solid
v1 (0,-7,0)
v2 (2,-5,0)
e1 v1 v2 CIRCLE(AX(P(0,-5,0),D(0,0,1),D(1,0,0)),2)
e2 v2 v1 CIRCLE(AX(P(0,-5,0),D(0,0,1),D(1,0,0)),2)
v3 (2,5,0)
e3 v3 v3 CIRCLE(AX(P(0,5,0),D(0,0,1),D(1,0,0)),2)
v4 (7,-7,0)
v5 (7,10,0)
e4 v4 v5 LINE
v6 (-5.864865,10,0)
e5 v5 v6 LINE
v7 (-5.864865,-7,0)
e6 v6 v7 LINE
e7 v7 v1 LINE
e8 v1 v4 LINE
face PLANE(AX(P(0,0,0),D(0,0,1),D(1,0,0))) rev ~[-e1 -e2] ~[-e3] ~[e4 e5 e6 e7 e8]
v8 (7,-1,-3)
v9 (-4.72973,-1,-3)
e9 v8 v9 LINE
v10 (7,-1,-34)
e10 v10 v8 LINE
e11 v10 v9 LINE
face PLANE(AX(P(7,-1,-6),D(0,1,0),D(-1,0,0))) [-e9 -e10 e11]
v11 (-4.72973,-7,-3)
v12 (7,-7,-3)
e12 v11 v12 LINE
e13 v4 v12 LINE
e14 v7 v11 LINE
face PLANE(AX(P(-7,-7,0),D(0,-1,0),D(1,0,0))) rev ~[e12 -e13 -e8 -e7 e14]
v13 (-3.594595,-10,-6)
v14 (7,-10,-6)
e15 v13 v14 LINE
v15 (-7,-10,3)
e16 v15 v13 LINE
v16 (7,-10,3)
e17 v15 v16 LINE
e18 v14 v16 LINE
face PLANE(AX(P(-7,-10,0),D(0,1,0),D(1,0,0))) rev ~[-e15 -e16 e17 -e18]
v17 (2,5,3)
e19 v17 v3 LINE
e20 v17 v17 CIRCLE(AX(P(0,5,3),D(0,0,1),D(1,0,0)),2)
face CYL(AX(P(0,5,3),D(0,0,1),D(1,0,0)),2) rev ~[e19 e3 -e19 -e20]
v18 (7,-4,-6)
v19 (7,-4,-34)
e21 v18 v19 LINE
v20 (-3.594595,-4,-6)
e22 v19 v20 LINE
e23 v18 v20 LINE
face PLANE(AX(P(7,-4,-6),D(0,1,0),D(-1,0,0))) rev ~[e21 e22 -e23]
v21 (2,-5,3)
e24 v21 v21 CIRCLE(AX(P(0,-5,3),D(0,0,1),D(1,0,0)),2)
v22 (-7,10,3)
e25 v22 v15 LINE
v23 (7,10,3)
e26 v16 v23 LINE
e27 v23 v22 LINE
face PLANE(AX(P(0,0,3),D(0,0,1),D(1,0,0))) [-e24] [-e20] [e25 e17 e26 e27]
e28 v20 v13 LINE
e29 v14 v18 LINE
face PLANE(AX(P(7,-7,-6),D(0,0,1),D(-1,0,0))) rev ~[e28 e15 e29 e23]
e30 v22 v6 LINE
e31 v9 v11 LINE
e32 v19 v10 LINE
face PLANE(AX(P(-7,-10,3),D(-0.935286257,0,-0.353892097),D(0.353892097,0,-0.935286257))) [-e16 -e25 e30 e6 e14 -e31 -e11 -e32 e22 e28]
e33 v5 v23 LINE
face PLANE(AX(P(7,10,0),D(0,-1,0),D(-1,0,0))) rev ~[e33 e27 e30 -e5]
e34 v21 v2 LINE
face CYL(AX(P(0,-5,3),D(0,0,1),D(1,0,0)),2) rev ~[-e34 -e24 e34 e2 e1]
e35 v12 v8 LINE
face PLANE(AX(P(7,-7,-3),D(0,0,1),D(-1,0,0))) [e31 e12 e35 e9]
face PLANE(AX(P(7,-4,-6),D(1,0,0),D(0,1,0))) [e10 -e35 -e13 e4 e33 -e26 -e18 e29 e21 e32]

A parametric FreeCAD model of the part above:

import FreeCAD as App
import Part
import Sketcher
Q = App.Units.Quantity

doc = App.newDocument("Part")
body = doc.addObject("PartDesign::Body", "Body")

# Sketch on XY plane
sketch1 = body.newObject("Sketcher::SketchObject", "Sketch")
sketch1.AttachmentSupport = (doc.getObject("XY_Plane"), [""])
sketch1.MapMode = "FlatFace"
sketch1.addGeometry([
    Part.LineSegment(App.Vector(-7, 10, 0), App.Vector(-7, -10, 0)),
    Part.LineSegment(App.Vector(-7, -10, 0), App.Vector(7, -10, 0)),
    Part.LineSegment(App.Vector(7, -10, 0), App.Vector(7, 10, 0)),
    Part.LineSegment(App.Vector(7, 10, 0), App.Vector(-7, 10, 0)),
], False)
sketch1.addConstraint([
    Sketcher.Constraint("Coincident", 0, 2, 1, 1),
    Sketcher.Constraint("Coincident", 1, 2, 2, 1),
    Sketcher.Constraint("Coincident", 2, 2, 3, 1),
    Sketcher.Constraint("Coincident", 3, 2, 0, 1),
    Sketcher.Constraint("Vertical", 0),
    Sketcher.Constraint("Horizontal", 1),
    Sketcher.Constraint("Vertical", 2),
    Sketcher.Constraint("Horizontal", 3),
    Sketcher.Constraint("Symmetric", 0, 2, 2, 2, -1, 1),
    Sketcher.Constraint("DistanceX", 1, 1, 1, 2, Q("14 mm")),
    Sketcher.Constraint("DistanceY", 0, 2, 0, 1, Q("20 mm")),
])
pad1 = body.newObject("PartDesign::Pad", "Pad")
pad1.Profile = sketch1
pad1.Length = 3

# Sketch on XY plane
sketch2 = body.newObject("Sketcher::SketchObject", "Sketch001")
sketch2.AttachmentSupport = (doc.getObject("XY_Plane"), [""])
sketch2.MapMode = "FlatFace"
sketch2.addGeometry([
    Part.LineSegment(App.Vector(7, -10, 0), App.Vector(-7, -10, 0)),
    Part.LineSegment(App.Vector(-7, -10, 0), App.Vector(-7, -7, 0)),
    Part.LineSegment(App.Vector(-7, -7, 0), App.Vector(7, -7, 0)),
    Part.LineSegment(App.Vector(7, -7, 0), App.Vector(7, -10, 0)),
], False)
sketch2.addConstraint([
    Sketcher.Constraint("Coincident", 0, 2, 1, 1),
    Sketcher.Constraint("Coincident", 1, 2, 2, 1),
    Sketcher.Constraint("Coincident", 2, 2, 3, 1),
    Sketcher.Constraint("Coincident", 3, 2, 0, 1),
    Sketcher.Constraint("Horizontal", 0),
    Sketcher.Constraint("Vertical", 1),
    Sketcher.Constraint("Horizontal", 2),
    Sketcher.Constraint("Vertical", 3),
    Sketcher.Constraint("DistanceY", 1, 1, 1, 2, Q("3 mm")),
    Sketcher.Constraint("DistanceX", 0, 2, 0, 1, Q("14 mm")),
    Sketcher.Constraint("DistanceX", 0, 2, -1, 1, Q("7 mm")),
    Sketcher.Constraint("DistanceY", 0, 2, -1, 1, Q("10 mm")),
])
pad2 = body.newObject("PartDesign::Pad", "Pad001")
pad2.Profile = sketch2
pad2.Length = 6
pad2.Reversed = True

# Sketch on XZ plane
sketch3 = body.newObject("Sketcher::SketchObject", "Sketch002")
sketch3.AttachmentSupport = (doc.getObject("XZ_Plane"), [""])
sketch3.MapMode = "FlatFace"
sketch3.AttachmentOffset = App.Placement(App.Vector(0, 0, 7), App.Rotation())
sketch3.addGeometry([
    Part.LineSegment(App.Vector(7, -3, 0), App.Vector(7, -6, 0)),
    Part.LineSegment(App.Vector(7, -6, 0), App.Vector(-7, -6, 0)),
    Part.LineSegment(App.Vector(-7, -6, 0), App.Vector(-7, -3, 0)),
    Part.LineSegment(App.Vector(-7, -3, 0), App.Vector(7, -3, 0)),
], False)
sketch3.addConstraint([
    Sketcher.Constraint("Coincident", 0, 2, 1, 1),
    Sketcher.Constraint("Coincident", 1, 2, 2, 1),
    Sketcher.Constraint("Coincident", 2, 2, 3, 1),
    Sketcher.Constraint("Coincident", 3, 2, 0, 1),
    Sketcher.Constraint("Vertical", 0),
    Sketcher.Constraint("Horizontal", 1),
    Sketcher.Constraint("Vertical", 2),
    Sketcher.Constraint("Horizontal", 3),
    Sketcher.Constraint("DistanceY", 0, 2, 0, 1, Q("3 mm")),
    Sketcher.Constraint("DistanceY", 2, 2, -1, 1, Q("3 mm")),
    Sketcher.Constraint("DistanceX", 1, 2, 1, 1, Q("14 mm")),
    Sketcher.Constraint("DistanceX", -1, 1, 0, 2, Q("7 mm")),
])
pad3 = body.newObject("PartDesign::Pad", "Pad002")
pad3.Profile = sketch3
pad3.Length = 6
pad3.Reversed = True

# Sketch on XY plane
sketch4 = body.newObject("Sketcher::SketchObject", "Sketch003")
sketch4.AttachmentSupport = (doc.getObject("XY_Plane"), [""])
sketch4.MapMode = "FlatFace"
sketch4.AttachmentOffset = App.Placement(App.Vector(0, 0, -6), App.Rotation())
sketch4.addGeometry([
    Part.LineSegment(App.Vector(7, -1, 0), App.Vector(7, -4, 0)),
    Part.LineSegment(App.Vector(7, -4, 0), App.Vector(-7, -4, 0)),
    Part.LineSegment(App.Vector(-7, -4, 0), App.Vector(-7, -1, 0)),
    Part.LineSegment(App.Vector(-7, -1, 0), App.Vector(7, -1, 0)),
], False)
sketch4.addConstraint([
    Sketcher.Constraint("Coincident", 0, 2, 1, 1),
    Sketcher.Constraint("Coincident", 1, 2, 2, 1),
    Sketcher.Constraint("Coincident", 2, 2, 3, 1),
    Sketcher.Constraint("Coincident", 3, 2, 0, 1),
    Sketcher.Constraint("Vertical", 0),
    Sketcher.Constraint("Horizontal", 1),
    Sketcher.Constraint("Vertical", 2),
    Sketcher.Constraint("Horizontal", 3),
    Sketcher.Constraint("DistanceY", 0, 2, 0, 1, Q("3 mm")),
    Sketcher.Constraint("DistanceX", 1, 2, 1, 1, Q("14 mm")),
    Sketcher.Constraint("DistanceX", -1, 1, 0, 2, Q("7 mm")),
    Sketcher.Constraint("DistanceY", 0, 2, -1, 1, Q("4 mm")),
])
pad4 = body.newObject("PartDesign::Pad", "Pad003")
pad4.Profile = sketch4
pad4.Length = 28
pad4.Reversed = True

# Sketch on XZ plane
sketch5 = body.newObject("Sketcher::SketchObject", "Sketch004")
sketch5.AttachmentSupport = (doc.getObject("XZ_Plane"), [""])
sketch5.MapMode = "FlatFace"
sketch5.AttachmentOffset = App.Placement(App.Vector(0, 0, 10), App.Rotation())
sketch5.addGeometry([
    Part.LineSegment(App.Vector(-7, 3, 0), App.Vector(-7, -34, 0)),
    Part.LineSegment(App.Vector(-7, -34, 0), App.Vector(7, -34, 0)),
    Part.LineSegment(App.Vector(7, -34, 0), App.Vector(-7, 3, 0)),
], False)
sketch5.addConstraint([
    Sketcher.Constraint("Coincident", 0, 2, 1, 1),
    Sketcher.Constraint("Coincident", 1, 2, 2, 1),
    Sketcher.Constraint("Coincident", 2, 2, 0, 1),
    Sketcher.Constraint("Vertical", 0),
    Sketcher.Constraint("Horizontal", 1),
    Sketcher.Constraint("DistanceX", 1, 1, 1, 2, Q("14 mm")),
    Sketcher.Constraint("DistanceY", 0, 2, 0, 1, Q("37 mm")),
    Sketcher.Constraint("DistanceX", 0, 2, -1, 1, Q("7 mm")),
    Sketcher.Constraint("DistanceY", 0, 2, -1, 1, Q("34 mm")),
])
pocket1 = body.newObject("PartDesign::Pocket", "Pocket")
pocket1.Profile = sketch5
pocket1.Length = 28

# Sketch on XY plane
sketch6 = body.newObject("Sketcher::SketchObject", "Sketch005")
sketch6.AttachmentSupport = (doc.getObject("XY_Plane"), [""])
sketch6.MapMode = "FlatFace"
sketch6.AttachmentOffset = App.Placement(App.Vector(0, 0, 3), App.Rotation())
sketch6.addGeometry([
    Part.Circle(App.Vector(0, 5, 0), App.Vector(0, 0, 1), 2),
    Part.Circle(App.Vector(0, -5, 0), App.Vector(0, 0, 1), 2),
], False)
sketch6.addConstraint([
    Sketcher.Constraint("Equal", 0, 1),
    Sketcher.Constraint("Symmetric", 0, 3, 1, 3, -1, 1),
    Sketcher.Constraint("PointOnObject", 0, 3, -2),
    Sketcher.Constraint("Diameter", 0, Q("4 mm")),
    Sketcher.Constraint("DistanceY", -1, 1, 0, 3, Q("5 mm")),
])
pocket2 = body.newObject("PartDesign::Pocket", "Pocket001")
pocket2.Profile = sketch6
pocket2.Length = 6

doc.recompute()
